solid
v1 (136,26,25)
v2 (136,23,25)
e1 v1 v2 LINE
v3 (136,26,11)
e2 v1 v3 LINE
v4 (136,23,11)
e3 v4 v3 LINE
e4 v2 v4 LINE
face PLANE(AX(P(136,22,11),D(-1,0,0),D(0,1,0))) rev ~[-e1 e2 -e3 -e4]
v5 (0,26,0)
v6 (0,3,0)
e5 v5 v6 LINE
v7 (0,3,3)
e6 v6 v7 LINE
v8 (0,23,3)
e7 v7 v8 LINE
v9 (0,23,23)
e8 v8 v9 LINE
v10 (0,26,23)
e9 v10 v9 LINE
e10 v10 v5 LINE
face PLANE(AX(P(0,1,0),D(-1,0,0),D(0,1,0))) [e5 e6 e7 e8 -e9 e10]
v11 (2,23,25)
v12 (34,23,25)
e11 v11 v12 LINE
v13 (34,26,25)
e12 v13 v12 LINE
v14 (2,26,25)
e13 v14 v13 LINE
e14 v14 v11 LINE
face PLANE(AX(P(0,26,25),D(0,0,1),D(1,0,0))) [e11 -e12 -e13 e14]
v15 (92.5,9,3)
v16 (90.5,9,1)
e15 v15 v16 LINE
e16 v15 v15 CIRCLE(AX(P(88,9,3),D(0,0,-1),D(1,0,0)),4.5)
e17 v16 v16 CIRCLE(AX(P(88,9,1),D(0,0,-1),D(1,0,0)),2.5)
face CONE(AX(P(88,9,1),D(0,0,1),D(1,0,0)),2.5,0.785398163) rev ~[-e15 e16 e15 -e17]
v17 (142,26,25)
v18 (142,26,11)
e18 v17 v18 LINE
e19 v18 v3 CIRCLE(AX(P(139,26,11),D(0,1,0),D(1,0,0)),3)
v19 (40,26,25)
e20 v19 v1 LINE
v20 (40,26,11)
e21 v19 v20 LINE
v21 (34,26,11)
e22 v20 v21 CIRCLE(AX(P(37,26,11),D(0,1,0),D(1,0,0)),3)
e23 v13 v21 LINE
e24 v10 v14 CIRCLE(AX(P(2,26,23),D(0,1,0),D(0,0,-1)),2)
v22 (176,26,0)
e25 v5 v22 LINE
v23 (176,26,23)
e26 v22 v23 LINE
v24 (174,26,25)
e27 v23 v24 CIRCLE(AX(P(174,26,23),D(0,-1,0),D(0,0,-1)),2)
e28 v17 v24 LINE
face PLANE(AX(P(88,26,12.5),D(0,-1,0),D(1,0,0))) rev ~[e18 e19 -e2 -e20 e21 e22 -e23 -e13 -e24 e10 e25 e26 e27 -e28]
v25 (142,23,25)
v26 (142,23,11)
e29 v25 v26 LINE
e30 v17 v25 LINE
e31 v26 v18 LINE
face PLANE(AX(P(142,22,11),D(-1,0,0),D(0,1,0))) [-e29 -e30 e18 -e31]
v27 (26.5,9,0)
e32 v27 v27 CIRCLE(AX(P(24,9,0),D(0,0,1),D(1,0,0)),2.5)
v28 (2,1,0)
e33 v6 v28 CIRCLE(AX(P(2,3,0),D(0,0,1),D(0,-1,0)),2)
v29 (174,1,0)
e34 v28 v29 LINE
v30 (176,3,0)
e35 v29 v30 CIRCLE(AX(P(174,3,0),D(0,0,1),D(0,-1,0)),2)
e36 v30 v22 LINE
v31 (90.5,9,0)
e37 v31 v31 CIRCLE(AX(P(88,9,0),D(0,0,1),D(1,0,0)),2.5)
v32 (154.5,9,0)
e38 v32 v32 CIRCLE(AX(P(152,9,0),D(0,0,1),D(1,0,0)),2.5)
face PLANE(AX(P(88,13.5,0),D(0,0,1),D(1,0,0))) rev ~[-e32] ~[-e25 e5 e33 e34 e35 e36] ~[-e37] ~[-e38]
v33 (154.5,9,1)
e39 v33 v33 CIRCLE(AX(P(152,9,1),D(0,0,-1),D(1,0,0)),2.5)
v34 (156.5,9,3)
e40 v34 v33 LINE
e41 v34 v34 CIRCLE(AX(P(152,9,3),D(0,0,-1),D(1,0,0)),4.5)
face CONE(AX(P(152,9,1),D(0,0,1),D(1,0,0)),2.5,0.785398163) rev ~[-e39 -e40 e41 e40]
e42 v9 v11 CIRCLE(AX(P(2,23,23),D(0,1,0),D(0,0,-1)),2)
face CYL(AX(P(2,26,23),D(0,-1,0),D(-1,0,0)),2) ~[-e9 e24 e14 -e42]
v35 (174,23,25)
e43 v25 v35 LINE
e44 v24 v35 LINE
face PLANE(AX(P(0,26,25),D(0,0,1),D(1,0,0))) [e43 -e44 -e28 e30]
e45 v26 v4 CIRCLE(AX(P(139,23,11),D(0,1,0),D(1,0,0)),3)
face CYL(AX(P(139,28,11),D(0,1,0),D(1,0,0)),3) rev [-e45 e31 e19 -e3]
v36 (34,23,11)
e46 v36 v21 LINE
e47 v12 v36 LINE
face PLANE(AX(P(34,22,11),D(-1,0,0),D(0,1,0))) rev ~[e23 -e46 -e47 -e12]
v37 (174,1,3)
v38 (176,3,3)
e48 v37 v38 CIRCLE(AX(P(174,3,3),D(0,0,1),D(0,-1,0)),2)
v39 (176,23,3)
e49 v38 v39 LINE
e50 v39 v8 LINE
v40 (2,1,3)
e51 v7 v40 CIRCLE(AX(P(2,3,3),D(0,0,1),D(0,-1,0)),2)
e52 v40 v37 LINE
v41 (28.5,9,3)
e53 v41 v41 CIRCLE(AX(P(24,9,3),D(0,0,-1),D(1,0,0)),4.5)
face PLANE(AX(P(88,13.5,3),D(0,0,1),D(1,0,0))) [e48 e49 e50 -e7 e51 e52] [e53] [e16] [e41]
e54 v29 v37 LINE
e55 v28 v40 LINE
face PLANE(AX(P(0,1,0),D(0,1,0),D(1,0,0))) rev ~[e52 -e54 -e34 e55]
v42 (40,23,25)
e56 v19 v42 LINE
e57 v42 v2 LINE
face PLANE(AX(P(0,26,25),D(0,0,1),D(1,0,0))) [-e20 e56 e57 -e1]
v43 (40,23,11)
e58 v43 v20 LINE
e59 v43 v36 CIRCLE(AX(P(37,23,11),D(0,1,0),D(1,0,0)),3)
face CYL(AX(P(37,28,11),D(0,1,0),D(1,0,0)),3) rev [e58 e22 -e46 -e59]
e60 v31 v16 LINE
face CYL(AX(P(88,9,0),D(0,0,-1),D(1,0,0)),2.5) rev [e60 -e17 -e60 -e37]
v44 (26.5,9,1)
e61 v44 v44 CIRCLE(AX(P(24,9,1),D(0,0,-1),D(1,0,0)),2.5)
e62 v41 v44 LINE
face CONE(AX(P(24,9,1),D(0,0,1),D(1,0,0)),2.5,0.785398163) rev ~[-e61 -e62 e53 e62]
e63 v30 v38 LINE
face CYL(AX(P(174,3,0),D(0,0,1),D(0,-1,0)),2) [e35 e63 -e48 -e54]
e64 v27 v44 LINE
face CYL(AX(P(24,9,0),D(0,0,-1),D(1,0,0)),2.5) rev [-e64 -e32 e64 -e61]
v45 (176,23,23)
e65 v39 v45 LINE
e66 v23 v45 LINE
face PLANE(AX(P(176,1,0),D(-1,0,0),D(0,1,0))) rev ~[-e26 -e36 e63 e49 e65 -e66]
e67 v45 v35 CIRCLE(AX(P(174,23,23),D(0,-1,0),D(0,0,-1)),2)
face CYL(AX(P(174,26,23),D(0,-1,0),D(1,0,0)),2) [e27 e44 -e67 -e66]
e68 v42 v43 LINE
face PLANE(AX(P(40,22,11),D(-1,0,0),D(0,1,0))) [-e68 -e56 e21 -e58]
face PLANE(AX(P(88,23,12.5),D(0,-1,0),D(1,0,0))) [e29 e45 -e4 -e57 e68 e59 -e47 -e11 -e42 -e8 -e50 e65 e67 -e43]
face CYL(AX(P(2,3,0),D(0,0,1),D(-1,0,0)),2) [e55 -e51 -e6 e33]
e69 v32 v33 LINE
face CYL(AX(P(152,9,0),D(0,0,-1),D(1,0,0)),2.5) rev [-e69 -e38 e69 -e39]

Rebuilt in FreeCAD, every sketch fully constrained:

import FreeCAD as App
import Part
import Sketcher

V = App.Vector


def edges_at(feature, points):
    """Names of the edges that pass closest to the given points."""
    edges = feature.Shape.Edges
    near = lambda p: min(range(len(edges)), key=lambda i: edges[i].distToShape(Part.Vertex(*p))[0])
    return sorted({f"Edge{near(p) + 1}" for p in points})

doc = App.newDocument("Part")
body = doc.addObject("PartDesign::Body", "Body")

# Sketch on XY plane
sketch1 = body.newObject("Sketcher::SketchObject", "Sketch")
sketch1.AttachmentSupport = (doc.getObject("XY_Plane"), [""])
sketch1.MapMode = "FlatFace"
sketch1.addGeometry(Part.Circle(V(88, 9, 0), V(0, 0, 1), 2.5), False)
sketch1.addConstraint([
    Sketcher.Constraint("Diameter", 0, 5.0),
    Sketcher.Constraint("DistanceX", -1, 1, 0, 3, 88.0),
    Sketcher.Constraint("DistanceY", -1, 1, 0, 3, 9.0),
])
pad1 = body.newObject("PartDesign::Pad", "Pad")
pad1.Profile = sketch1
pad1.Length = 10
body2 = doc.addObject("PartDesign::Body", "Body001")

# Sketch on XY plane
sketch2 = body2.newObject("Sketcher::SketchObject", "Sketch001")
sketch2.AttachmentSupport = (doc.getObject("XY_Plane001"), [""])
sketch2.MapMode = "FlatFace"
sketch2.addGeometry(Part.Circle(V(152, 9, 0), V(0, 0, 1), 2.5), False)
sketch2.addConstraint([
    Sketcher.Constraint("Diameter", 0, 5.0),
    Sketcher.Constraint("DistanceX", -1, 1, 0, 3, 152.0),
    Sketcher.Constraint("DistanceY", -1, 1, 0, 3, 9.0),
])
pad2 = body2.newObject("PartDesign::Pad", "Pad001")
pad2.Profile = sketch2
pad2.Length = 10
body3 = doc.addObject("PartDesign::Body", "Body002")

# Sketch on XY plane
sketch3 = body3.newObject("Sketcher::SketchObject", "Sketch002")
sketch3.AttachmentSupport = (doc.getObject("XY_Plane002"), [""])
sketch3.MapMode = "FlatFace"
sketch3.addGeometry(Part.Circle(V(24, 9, 0), V(0, 0, 1), 2.5), False)
sketch3.addConstraint([
    Sketcher.Constraint("Diameter", 0, 5.0),
    Sketcher.Constraint("DistanceX", -1, 1, 0, 3, 24.0),
    Sketcher.Constraint("DistanceY", -1, 1, 0, 3, 9.0),
])
pad3 = body3.newObject("PartDesign::Pad", "Pad002")
pad3.Profile = sketch3
pad3.Length = 10
body4 = doc.addObject("PartDesign::Body", "Body003")

# Sketch on XY plane
sketch4 = body4.newObject("Sketcher::SketchObject", "Sketch003")
sketch4.AttachmentSupport = (doc.getObject("XY_Plane003"), [""])
sketch4.MapMode = "FlatFace"
sketch4.addGeometry([
    Part.LineSegment(V(0, 26, 0), V(0, 1, 0)),
    Part.LineSegment(V(0, 1, 0), V(176, 1, 0)),
    Part.LineSegment(V(176, 1, 0), V(176, 26, 0)),
    Part.LineSegment(V(176, 26, 0), V(0, 26, 0)),
], False)
sketch4.addConstraint([
    Sketcher.Constraint("Coincident", 0, 2, 1, 1),
    Sketcher.Constraint("Coincident", 1, 2, 2, 1),
    Sketcher.Constraint("Coincident", 2, 2, 3, 1),
    Sketcher.Constraint("Coincident", 3, 2, 0, 1),
    Sketcher.Constraint("Vertical", 0),
    Sketcher.Constraint("Horizontal", 1),
    Sketcher.Constraint("Vertical", 2),
    Sketcher.Constraint("Horizontal", 3),
    Sketcher.Constraint("PointOnObject", 0, 2, -2),
    Sketcher.Constraint("DistanceX", 1, 1, 1, 2, 176.0),
    Sketcher.Constraint("DistanceY", 0, 2, 0, 1, 25.0),
    Sketcher.Constraint("DistanceY", -1, 1, 0, 2, 1.0),
])
pad4 = body4.newObject("PartDesign::Pad", "Pad003")
pad4.Profile = sketch4
pad4.Length = 3
doc.recompute()

boolean = body4.newObject("PartDesign::Boolean", "Boolean")
boolean.Type = "Cut"
boolean.addObjects([body3])
doc.recompute()

boolean2 = body4.newObject("PartDesign::Boolean", "Boolean001")
boolean2.Type = "Cut"
boolean2.addObjects([body2])
doc.recompute()

boolean3 = body4.newObject("PartDesign::Boolean", "Boolean002")
boolean3.Type = "Cut"
boolean3.addObjects([body])
doc.recompute()

chamfer = body4.newObject("PartDesign::Chamfer", "Chamfer")
chamfer.Base = (boolean3, edges_at(boolean3, [(85.5, 9, 3), (21.5, 9, 3), (149.5, 9, 3)]))
chamfer.Size = 2
doc.recompute()

fillet = body4.newObject("PartDesign::Fillet", "Fillet")
fillet.Base = (chamfer, edges_at(chamfer, [(0, 1, 1.5), (176, 1, 1.5)]))
fillet.Radius = 2
body5 = doc.addObject("PartDesign::Body", "Body004")

# Sketch on XY plane
sketch5 = body5.newObject("Sketcher::SketchObject", "Sketch004")
sketch5.AttachmentSupport = (doc.getObject("XY_Plane004"), [""])
sketch5.MapMode = "FlatFace"
sketch5.addGeometry(Part.Circle(V(0, 0, 0), V(0, 0, 1), 3), False)
sketch5.addConstraint([
    Sketcher.Constraint("Coincident", 0, 3, -1, 1),
    Sketcher.Constraint("Diameter", 0, 6.0),
])
pad5 = body5.newObject("PartDesign::Pad", "Pad004")
pad5.Profile = sketch5
pad5.Length = 6
body6 = doc.addObject("PartDesign::Body", "Body005")
doc.recompute()

body5.Placement = App.Placement(V(0, 0, 0), App.Rotation(V(1, 0, 0), 90))
boolean4 = body6.newObject("PartDesign::Boolean", "Boolean003")
boolean4.Type = "Fuse"
boolean4.addObjects([body5])
body7 = doc.addObject("PartDesign::Body", "Body006")
doc.recompute()

body6.Placement = App.Placement(V(36, 6, 0), App.Rotation(V(0, 0, 1), 0))
boolean5 = body7.newObject("PartDesign::Boolean", "Boolean004")
boolean5.Type = "Fuse"
boolean5.addObjects([body6])
body8 = doc.addObject("PartDesign::Body", "Body007")

# Sketch on XY plane
sketch6 = body8.newObject("Sketcher::SketchObject", "Sketch005")
sketch6.AttachmentSupport = (doc.getObject("XY_Plane007"), [""])
sketch6.MapMode = "FlatFace"
sketch6.addGeometry([
    Part.LineSegment(V(33, 6, 0), V(33, 0, 0)),
    Part.LineSegment(V(33, 0, 0), V(39, 0, 0)),
    Part.LineSegment(V(39, 0, 0), V(39, 6, 0)),
    Part.LineSegment(V(39, 6, 0), V(33, 6, 0)),
], False)
sketch6.addConstraint([
    Sketcher.Constraint("Coincident", 0, 2, 1, 1),
    Sketcher.Constraint("Coincident", 1, 2, 2, 1),
    Sketcher.Constraint("Coincident", 2, 2, 3, 1),
    Sketcher.Constraint("Coincident", 3, 2, 0, 1),
    Sketcher.Constraint("Vertical", 0),
    Sketcher.Constraint("Horizontal", 1),
    Sketcher.Constraint("Vertical", 2),
    Sketcher.Constraint("Horizontal", 3),
    Sketcher.Constraint("PointOnObject", 0, 2, -1),
    Sketcher.Constraint("Equal", 3, 0),
    Sketcher.Constraint("DistanceX", 1, 1, 1, 2, 6.0),
    Sketcher.Constraint("DistanceX", -1, 1, 0, 2, 33.0),
])
pad6 = body8.newObject("PartDesign::Pad", "Pad005")
pad6.Profile = sketch6
pad6.Length = 15
doc.recompute()

boolean6 = body8.newObject("PartDesign::Boolean", "Boolean005")
boolean6.Type = "Fuse"
boolean6.addObjects([body7])
body9 = doc.addObject("PartDesign::Body", "Body008")
doc.recompute()

body8.Placement = App.Placement(V(103, 22, 11), App.Rotation(V(0, 0, 1), 0))
boolean7 = body9.newObject("PartDesign::Boolean", "Boolean006")
boolean7.Type = "Fuse"
boolean7.addObjects([body8])
body10 = doc.addObject("PartDesign::Body", "Body009")

# Sketch on XY plane
sketch7 = body10.newObject("Sketcher::SketchObject", "Sketch006")
sketch7.AttachmentSupport = (doc.getObject("XY_Plane009"), [""])
sketch7.MapMode = "FlatFace"
sketch7.addGeometry(Part.Circle(V(0, 0, 0), V(0, 0, 1), 3), False)
sketch7.addConstraint([
    Sketcher.Constraint("Coincident", 0, 3, -1, 1),
    Sketcher.Constraint("Diameter", 0, 6.0),
])
pad7 = body10.newObject("PartDesign::Pad", "Pad006")
pad7.Profile = sketch7
pad7.Length = 6
body11 = doc.addObject("PartDesign::Body", "Body010")
doc.recompute()

body10.Placement = App.Placement(V(0, 0, 0), App.Rotation(V(1, 0, 0), 90))
boolean8 = body11.newObject("PartDesign::Boolean", "Boolean007")
boolean8.Type = "Fuse"
boolean8.addObjects([body10])
body12 = doc.addObject("PartDesign::Body", "Body011")
doc.recompute()

body11.Placement = App.Placement(V(36, 6, 0), App.Rotation(V(0, 0, 1), 0))
boolean9 = body12.newObject("PartDesign::Boolean", "Boolean008")
boolean9.Type = "Fuse"
boolean9.addObjects([body11])
body13 = doc.addObject("PartDesign::Body", "Body012")

# Sketch on XY plane
sketch8 = body13.newObject("Sketcher::SketchObject", "Sketch007")
sketch8.AttachmentSupport = (doc.getObject("XY_Plane012"), [""])
sketch8.MapMode = "FlatFace"
sketch8.addGeometry([
    Part.LineSegment(V(33, 6, 0), V(33, 0, 0)),
    Part.LineSegment(V(33, 0, 0), V(39, 0, 0)),
    Part.LineSegment(V(39, 0, 0), V(39, 6, 0)),
    Part.LineSegment(V(39, 6, 0), V(33, 6, 0)),
], False)
sketch8.addConstraint([
    Sketcher.Constraint("Coincident", 0, 2, 1, 1),
    Sketcher.Constraint("Coincident", 1, 2, 2, 1),
    Sketcher.Constraint("Coincident", 2, 2, 3, 1),
    Sketcher.Constraint("Coincident", 3, 2, 0, 1),
    Sketcher.Constraint("Vertical", 0),
    Sketcher.Constraint("Horizontal", 1),
    Sketcher.Constraint("Vertical", 2),
    Sketcher.Constraint("Horizontal", 3),
    Sketcher.Constraint("PointOnObject", 0, 2, -1),
    Sketcher.Constraint("Equal", 3, 0),
    Sketcher.Constraint("DistanceX", 1, 1, 1, 2, 6.0),
    Sketcher.Constraint("DistanceX", -1, 1, 0, 2, 33.0),
])
pad8 = body13.newObject("PartDesign::Pad", "Pad007")
pad8.Profile = sketch8
pad8.Length = 15
doc.recompute()

boolean10 = body13.newObject("PartDesign::Boolean", "Boolean009")
boolean10.Type = "Fuse"
boolean10.addObjects([body12])
body14 = doc.addObject("PartDesign::Body", "Body013")
doc.recompute()

body13.Placement = App.Placement(V(1, 22, 11), App.Rotation(V(0, 0, 1), 0))
boolean11 = body14.newObject("PartDesign::Boolean", "Boolean010")
boolean11.Type = "Fuse"
boolean11.addObjects([body13])
body15 = doc.addObject("PartDesign::Body", "Body014")

# Sketch on XY plane
sketch9 = body15.newObject("Sketcher::SketchObject", "Sketch008")
sketch9.AttachmentSupport = (doc.getObject("XY_Plane014"), [""])
sketch9.MapMode = "FlatFace"
sketch9.addGeometry([
    Part.LineSegment(V(0, 25, 0), V(0, 0, 0)),
    Part.LineSegment(V(0, 0, 0), V(176, 0, 0)),
    Part.LineSegment(V(176, 0, 0), V(176, 25, 0)),
    Part.LineSegment(V(176, 25, 0), V(0, 25, 0)),
], False)
sketch9.addConstraint([
    Sketcher.Constraint("Coincident", 0, 2, 1, 1),
    Sketcher.Constraint("Coincident", 1, 2, 2, 1),
    Sketcher.Constraint("Coincident", 2, 2, 3, 1),
    Sketcher.Constraint("Coincident", 3, 2, 0, 1),
    Sketcher.Constraint("Vertical", 0),
    Sketcher.Constraint("Horizontal", 1),
    Sketcher.Constraint("Vertical", 2),
    Sketcher.Constraint("Horizontal", 3),
    Sketcher.Constraint("Coincident", 0, 2, -1, 1),
    Sketcher.Constraint("DistanceX", 1, 1, 1, 2, 176.0),
    Sketcher.Constraint("DistanceY", 0, 2, 0, 1, 25.0),
])
pad9 = body15.newObject("PartDesign::Pad", "Pad008")
pad9.Profile = sketch9
pad9.Length = 3
body16 = doc.addObject("PartDesign::Body", "Body015")
doc.recompute()

body15.Placement = App.Placement(V(0, 0, 0), App.Rotation(V(1, 0, 0), 90))
boolean12 = body16.newObject("PartDesign::Boolean", "Boolean011")
boolean12.Type = "Fuse"
boolean12.addObjects([body15])
body17 = doc.addObject("PartDesign::Body", "Body016")
doc.recompute()

body16.Placement = App.Placement(V(0, 26, 0), App.Rotation(V(0, 0, 1), 0))
boolean13 = body17.newObject("PartDesign::Boolean", "Boolean012")
boolean13.Type = "Fuse"
boolean13.addObjects([body16])
doc.recompute()

boolean14 = body17.newObject("PartDesign::Boolean", "Boolean013")
boolean14.Type = "Cut"
boolean14.addObjects([body14])
doc.recompute()

boolean15 = body17.newObject("PartDesign::Boolean", "Boolean014")
boolean15.Type = "Cut"
boolean15.addObjects([body9])
doc.recompute()

fillet2 = body17.newObject("PartDesign::Fillet", "Fillet001")
fillet2.Base = (boolean15, edges_at(boolean15, [(0, 24.5, 25), (176, 24.5, 25)]))
fillet2.Radius = 2
doc.recompute()

boolean16 = body17.newObject("PartDesign::Boolean", "Boolean015")
boolean16.Type = "Fuse"
boolean16.addObjects([body4])

doc.recompute()
